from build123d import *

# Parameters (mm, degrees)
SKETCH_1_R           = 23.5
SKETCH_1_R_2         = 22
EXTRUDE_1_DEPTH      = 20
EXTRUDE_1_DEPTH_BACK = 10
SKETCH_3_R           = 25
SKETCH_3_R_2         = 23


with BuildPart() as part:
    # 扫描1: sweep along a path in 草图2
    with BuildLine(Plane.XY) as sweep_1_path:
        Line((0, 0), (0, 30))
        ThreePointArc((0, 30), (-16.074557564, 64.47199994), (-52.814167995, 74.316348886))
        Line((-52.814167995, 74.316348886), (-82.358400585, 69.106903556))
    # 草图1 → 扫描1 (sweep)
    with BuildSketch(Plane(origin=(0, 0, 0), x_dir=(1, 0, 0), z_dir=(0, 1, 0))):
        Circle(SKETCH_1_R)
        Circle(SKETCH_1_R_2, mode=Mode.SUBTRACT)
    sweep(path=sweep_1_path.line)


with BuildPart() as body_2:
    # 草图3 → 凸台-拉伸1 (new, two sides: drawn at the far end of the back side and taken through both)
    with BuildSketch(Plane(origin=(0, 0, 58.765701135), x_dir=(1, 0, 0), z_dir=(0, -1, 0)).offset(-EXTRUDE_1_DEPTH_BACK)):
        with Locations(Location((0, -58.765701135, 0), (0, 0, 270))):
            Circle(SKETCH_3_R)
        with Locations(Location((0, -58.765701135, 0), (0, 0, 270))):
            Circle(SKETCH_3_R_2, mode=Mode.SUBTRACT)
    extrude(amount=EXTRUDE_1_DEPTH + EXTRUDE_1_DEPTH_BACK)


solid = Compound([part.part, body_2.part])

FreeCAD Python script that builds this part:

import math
import FreeCAD as App
import Part
import Sketcher

V = App.Vector
Q = App.Units.Quantity

doc = App.newDocument("Part")
body = doc.addObject("PartDesign::Body", "Body")

sketch1 = body.newObject("Sketcher::SketchObject", "Sketch")
sketch1.AttachmentSupport = (doc.getObject("XZ_Plane"), [""])
sketch1.MapMode = "FlatFace"
sketch1.addGeometry(Part.Circle(V(0, 0, 0), V(0, 0, 1), 24), False)
sketch1.addGeometry(Part.Circle(V(0, 0, 0), V(0, 0, 1), 22), False)
sketch1.addConstraint(Sketcher.Constraint("Coincident", 0, 3, -1, 1))
sketch1.addConstraint(Sketcher.Constraint("Coincident", 1, 3, -1, 1))
sketch1.addConstraint(Sketcher.Constraint("Diameter", 0, 47.0))
sketch1.addConstraint(Sketcher.Constraint("Diameter", 1, 44.0))

sketch2 = body.newObject("Sketcher::SketchObject", "Sketch001")
sketch2.AttachmentSupport = (doc.getObject("XY_Plane"), [""])
sketch2.MapMode = "FlatFace"
sketch2.addGeometry(Part.LineSegment(V(0, 0, 0), V(0, 30, 0)), False)
sketch2.addGeometry(Part.ArcOfCircle(Part.Circle(V(-45, 30, 0), V(0, 0, 1), 45), math.radians(0), math.radians(100)), False)
sketch2.addGeometry(Part.LineSegment(V(-53, 74, 0), V(-82, 69, 0)), False)
sketch2.addConstraint(Sketcher.Constraint("Tangent", 0, 2, 1, 1))
sketch2.addConstraint(Sketcher.Constraint("Tangent", 1, 2, 2, 1))
sketch2.addConstraint(Sketcher.Constraint("Vertical", 0))
sketch2.addConstraint(Sketcher.Constraint("Coincident", 0, 1, -1, 1))
sketch2.addConstraint(Sketcher.Constraint("Radius", 1, 45.0))
sketch2.addConstraint(Sketcher.Constraint("DistanceY", 0, 1, 0, 2, 30.0))
sketch2.addConstraint(Sketcher.Constraint("Angle", 2, Q("-170 deg")))
sketch2.addConstraint(Sketcher.Constraint("Distance", 2, 30.0))
doc.recompute()

additivepipe = body.newObject("PartDesign::AdditivePipe", "AdditivePipe")
additivepipe.Profile = sketch1
additivepipe.Spine = (sketch2, ["Edge1", "Edge2", "Edge3"])
body2 = doc.addObject("PartDesign::Body", "Body001")

sketch3 = body2.newObject("Sketcher::SketchObject", "Sketch002")
sketch3.AttachmentSupport = (doc.getObject("XZ_Plane001"), [""])
sketch3.MapMode = "FlatFace"
sketch3.addGeometry(Part.Circle(V(0, 0, 0), V(0, 0, 1), 25), False)
sketch3.addGeometry(Part.Circle(V(0, 0, 0), V(0, 0, 1), 23), False)
sketch3.addConstraint(Sketcher.Constraint("Coincident", 0, 3, -1, 1))
sketch3.addConstraint(Sketcher.Constraint("Coincident", 1, 3, -1, 1))
sketch3.addConstraint(Sketcher.Constraint("Diameter", 0, 50.0))
sketch3.addConstraint(Sketcher.Constraint("Diameter", 1, 46.0))
pad1 = body2.newObject("PartDesign::Pad", "Pad")
pad1.Profile = sketch3
pad1.Type = "TwoLengths"
pad1.Length = 20
pad1.Length2 = 10

doc.recompute()
